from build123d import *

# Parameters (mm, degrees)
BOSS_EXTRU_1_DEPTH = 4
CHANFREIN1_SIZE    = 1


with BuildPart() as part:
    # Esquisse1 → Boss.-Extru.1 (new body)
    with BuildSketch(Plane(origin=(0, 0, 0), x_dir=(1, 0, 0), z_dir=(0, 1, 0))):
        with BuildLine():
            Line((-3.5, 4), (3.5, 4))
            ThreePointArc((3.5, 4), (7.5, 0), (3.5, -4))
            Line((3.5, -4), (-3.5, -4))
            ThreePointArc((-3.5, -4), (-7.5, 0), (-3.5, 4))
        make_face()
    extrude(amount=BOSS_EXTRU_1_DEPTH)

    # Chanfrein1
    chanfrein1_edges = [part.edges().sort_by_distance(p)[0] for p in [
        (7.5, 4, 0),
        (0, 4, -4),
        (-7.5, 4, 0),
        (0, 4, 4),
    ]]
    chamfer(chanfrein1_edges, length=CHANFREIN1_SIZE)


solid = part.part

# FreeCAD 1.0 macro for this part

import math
import FreeCAD as App
import Part
import Sketcher
from FreeCAD import Vector


def edges_at(feature, points):
    """Names of the edges that pass closest to the given points."""
    edges = feature.Shape.Edges
    near = lambda p: min(range(len(edges)), key=lambda i: edges[i].distToShape(Part.Vertex(*p))[0])
    return sorted({f"Edge{near(p) + 1}" for p in points})

doc = App.newDocument("Part")
body = doc.addObject("PartDesign::Body", "Body")

sketch1 = body.newObject("Sketcher::SketchObject", "Sketch")
sketch1.AttachmentSupport = (doc.getObject("XZ_Plane"), [""])
sketch1.MapMode = "FlatFace"
sketch1.addGeometry([
    Part.LineSegment(Vector(3.5, -4, 0), Vector(-3.5, -4, 0)),
    Part.ArcOfCircle(Part.Circle(Vector(-3.5, 0, 0), Vector(0, 0, 1), 4), math.radians(90), math.radians(270)),
    Part.LineSegment(Vector(-3.5, 4, 0), Vector(3.5, 4, 0)),
    Part.ArcOfCircle(Part.Circle(Vector(3.5, 0, 0), Vector(0, 0, 1), 4), math.radians(-90), math.radians(90)),
], False)
sketch1.addConstraint([
    Sketcher.Constraint("Tangent", 0, 2, 1, 2),
    Sketcher.Constraint("Tangent", 1, 1, 2, 1),
    Sketcher.Constraint("Tangent", 2, 2, 3, 2),
    Sketcher.Constraint("Tangent", 3, 1, 0, 1),
    Sketcher.Constraint("Horizontal", 0),
    Sketcher.Constraint("Horizontal", 2),
    Sketcher.Constraint("Symmetric", 1, 3, 3, 3, -1, 1),
    Sketcher.Constraint("Radius", 1, 4.0),
    Sketcher.Constraint("DistanceX", 0, 2, 0, 1, 7.0),
])
pad1 = body.newObject("PartDesign::Pad", "Pad")
pad1.Profile = sketch1
pad1.Length = 4
pad1.Reversed = True
doc.recompute()

chamfer = body.newObject("PartDesign::Chamfer", "Chamfer")
chamfer.Base = (pad1, edges_at(pad1, [
    (7.5, 4, 0),
    (0, 4, -4),
    (-7.5, 4, 0),
    (0, 4, 4),
]))
chamfer.Size = 1

doc.recompute()
